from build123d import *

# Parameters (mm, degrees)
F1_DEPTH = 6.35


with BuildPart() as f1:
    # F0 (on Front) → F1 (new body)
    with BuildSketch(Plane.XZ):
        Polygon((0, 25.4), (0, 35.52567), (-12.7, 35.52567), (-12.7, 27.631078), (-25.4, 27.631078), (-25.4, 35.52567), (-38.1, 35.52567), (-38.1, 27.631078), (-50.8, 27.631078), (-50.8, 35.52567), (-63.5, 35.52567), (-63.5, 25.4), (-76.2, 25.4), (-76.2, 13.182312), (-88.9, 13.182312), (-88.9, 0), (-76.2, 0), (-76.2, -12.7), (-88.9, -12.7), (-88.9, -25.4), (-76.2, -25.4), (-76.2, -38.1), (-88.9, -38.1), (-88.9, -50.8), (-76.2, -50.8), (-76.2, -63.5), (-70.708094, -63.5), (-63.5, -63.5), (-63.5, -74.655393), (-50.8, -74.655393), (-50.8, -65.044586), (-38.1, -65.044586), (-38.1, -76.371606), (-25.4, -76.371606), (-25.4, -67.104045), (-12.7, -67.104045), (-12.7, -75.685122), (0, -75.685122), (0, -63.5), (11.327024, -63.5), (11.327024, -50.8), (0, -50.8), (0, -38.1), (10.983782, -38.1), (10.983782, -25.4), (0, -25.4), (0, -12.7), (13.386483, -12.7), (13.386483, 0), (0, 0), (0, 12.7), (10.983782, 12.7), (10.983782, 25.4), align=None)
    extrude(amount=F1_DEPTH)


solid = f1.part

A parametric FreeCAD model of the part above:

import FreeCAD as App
import Part
import Sketcher
Q = App.Units.Quantity

doc = App.newDocument("Part")
body = doc.addObject("PartDesign::Body", "Body")

# Sketch on XZ plane
sketch1 = body.newObject("Sketcher::SketchObject", "Sketch")
sketch1.AttachmentSupport = (doc.getObject("XZ_Plane"), [""])
sketch1.MapMode = "FlatFace"
sketch1.addGeometry(Part.LineSegment(App.Vector(0, 25.4, 0), App.Vector(0, 35.52567, 0)), False)
sketch1.addGeometry(Part.LineSegment(App.Vector(0, 35.52567, 0), App.Vector(-12.7, 35.52567, 0)), False)
sketch1.addGeometry(Part.LineSegment(App.Vector(-12.7, 35.52567, 0), App.Vector(-12.7, 27.631078, 0)), False)
sketch1.addGeometry(Part.LineSegment(App.Vector(-12.7, 27.631078, 0), App.Vector(-25.4, 27.631078, 0)), False)
sketch1.addGeometry(Part.LineSegment(App.Vector(-25.4, 27.631078, 0), App.Vector(-25.4, 35.52567, 0)), False)
sketch1.addGeometry(Part.LineSegment(App.Vector(-25.4, 35.52567, 0), App.Vector(-38.1, 35.52567, 0)), False)
sketch1.addGeometry(Part.LineSegment(App.Vector(-38.1, 35.52567, 0), App.Vector(-38.1, 27.631078, 0)), False)
sketch1.addGeometry(Part.LineSegment(App.Vector(-38.1, 27.631078, 0), App.Vector(-50.8, 27.631078, 0)), False)
sketch1.addGeometry(Part.LineSegment(App.Vector(-50.8, 27.631078, 0), App.Vector(-50.8, 35.52567, 0)), False)
sketch1.addGeometry(Part.LineSegment(App.Vector(-50.8, 35.52567, 0), App.Vector(-63.5, 35.52567, 0)), False)
sketch1.addGeometry(Part.LineSegment(App.Vector(-63.5, 35.52567, 0), App.Vector(-63.5, 25.4, 0)), False)
sketch1.addGeometry(Part.LineSegment(App.Vector(-63.5, 25.4, 0), App.Vector(-76.2, 25.4, 0)), False)
sketch1.addGeometry(Part.LineSegment(App.Vector(-76.2, 25.4, 0), App.Vector(-76.2, 13.182312, 0)), False)
sketch1.addGeometry(Part.LineSegment(App.Vector(-76.2, 13.182312, 0), App.Vector(-88.9, 13.182312, 0)), False)
sketch1.addGeometry(Part.LineSegment(App.Vector(-88.9, 13.182312, 0), App.Vector(-88.9, 0, 0)), False)
sketch1.addGeometry(Part.LineSegment(App.Vector(-88.9, 0, 0), App.Vector(-76.2, 0, 0)), False)
sketch1.addGeometry(Part.LineSegment(App.Vector(-76.2, 0, 0), App.Vector(-76.2, -12.7, 0)), False)
sketch1.addGeometry(Part.LineSegment(App.Vector(-76.2, -12.7, 0), App.Vector(-88.9, -12.7, 0)), False)
sketch1.addGeometry(Part.LineSegment(App.Vector(-88.9, -12.7, 0), App.Vector(-88.9, -25.4, 0)), False)
sketch1.addGeometry(Part.LineSegment(App.Vector(-88.9, -25.4, 0), App.Vector(-76.2, -25.4, 0)), False)
sketch1.addGeometry(Part.LineSegment(App.Vector(-76.2, -25.4, 0), App.Vector(-76.2, -38.1, 0)), False)
sketch1.addGeometry(Part.LineSegment(App.Vector(-76.2, -38.1, 0), App.Vector(-88.9, -38.1, 0)), False)
sketch1.addGeometry(Part.LineSegment(App.Vector(-88.9, -38.1, 0), App.Vector(-88.9, -50.8, 0)), False)
sketch1.addGeometry(Part.LineSegment(App.Vector(-88.9, -50.8, 0), App.Vector(-76.2, -50.8, 0)), False)
sketch1.addGeometry(Part.LineSegment(App.Vector(-76.2, -50.8, 0), App.Vector(-76.2, -63.5, 0)), False)
sketch1.addGeometry(Part.LineSegment(App.Vector(-76.2, -63.5, 0), App.Vector(-63.5, -63.5, 0)), False)
sketch1.addGeometry(Part.LineSegment(App.Vector(-63.5, -63.5, 0), App.Vector(-63.5, -74.655393, 0)), False)
sketch1.addGeometry(Part.LineSegment(App.Vector(-63.5, -74.655393, 0), App.Vector(-50.8, -74.655393, 0)), False)
sketch1.addGeometry(Part.LineSegment(App.Vector(-50.8, -74.655393, 0), App.Vector(-50.8, -65.044586, 0)), False)
sketch1.addGeometry(Part.LineSegment(App.Vector(-50.8, -65.044586, 0), App.Vector(-38.1, -65.044586, 0)), False)
sketch1.addGeometry(Part.LineSegment(App.Vector(-38.1, -65.044586, 0), App.Vector(-38.1, -76.371606, 0)), False)
sketch1.addGeometry(Part.LineSegment(App.Vector(-38.1, -76.371606, 0), App.Vector(-25.4, -76.371606, 0)), False)
sketch1.addGeometry(Part.LineSegment(App.Vector(-25.4, -76.371606, 0), App.Vector(-25.4, -67.104045, 0)), False)
sketch1.addGeometry(Part.LineSegment(App.Vector(-25.4, -67.104045, 0), App.Vector(-12.7, -67.104045, 0)), False)
sketch1.addGeometry(Part.LineSegment(App.Vector(-12.7, -67.104045, 0), App.Vector(-12.7, -75.685122, 0)), False)
sketch1.addGeometry(Part.LineSegment(App.Vector(-12.7, -75.685122, 0), App.Vector(0, -75.685122, 0)), False)
sketch1.addGeometry(Part.LineSegment(App.Vector(0, -75.685122, 0), App.Vector(0, -63.5, 0)), False)
sketch1.addGeometry(Part.LineSegment(App.Vector(0, -63.5, 0), App.Vector(11.327024, -63.5, 0)), False)
sketch1.addGeometry(Part.LineSegment(App.Vector(11.327024, -63.5, 0), App.Vector(11.327024, -50.8, 0)), False)
sketch1.addGeometry(Part.LineSegment(App.Vector(11.327024, -50.8, 0), App.Vector(0, -50.8, 0)), False)
sketch1.addGeometry(Part.LineSegment(App.Vector(0, -50.8, 0), App.Vector(0, -38.1, 0)), False)
sketch1.addGeometry(Part.LineSegment(App.Vector(0, -38.1, 0), App.Vector(10.983782, -38.1, 0)), False)
sketch1.addGeometry(Part.LineSegment(App.Vector(10.983782, -38.1, 0), App.Vector(10.983782, -25.4, 0)), False)
sketch1.addGeometry(Part.LineSegment(App.Vector(10.983782, -25.4, 0), App.Vector(0, -25.4, 0)), False)
sketch1.addGeometry(Part.LineSegment(App.Vector(0, -25.4, 0), App.Vector(0, -12.7, 0)), False)
sketch1.addGeometry(Part.LineSegment(App.Vector(0, -12.7, 0), App.Vector(13.386483, -12.7, 0)), False)
sketch1.addGeometry(Part.LineSegment(App.Vector(13.386483, -12.7, 0), App.Vector(13.386483, 0, 0)), False)
sketch1.addGeometry(Part.LineSegment(App.Vector(13.386483, 0, 0), App.Vector(0, 0, 0)), False)
sketch1.addGeometry(Part.LineSegment(App.Vector(0, 0, 0), App.Vector(0, 12.7, 0)), False)
sketch1.addGeometry(Part.LineSegment(App.Vector(0, 12.7, 0), App.Vector(10.983782, 12.7, 0)), False)
sketch1.addGeometry(Part.LineSegment(App.Vector(10.983782, 12.7, 0), App.Vector(10.983782, 25.4, 0)), False)
sketch1.addGeometry(Part.LineSegment(App.Vector(10.983782, 25.4, 0), App.Vector(0, 25.4, 0)), False)
sketch1.addConstraint(Sketcher.Constraint("Coincident", 0, 2, 1, 1))
sketch1.addConstraint(Sketcher.Constraint("Coincident", 1, 2, 2, 1))
sketch1.addConstraint(Sketcher.Constraint("Coincident", 2, 2, 3, 1))
sketch1.addConstraint(Sketcher.Constraint("Coincident", 3, 2, 4, 1))
sketch1.addConstraint(Sketcher.Constraint("Coincident", 4, 2, 5, 1))
sketch1.addConstraint(Sketcher.Constraint("Coincident", 5, 2, 6, 1))
sketch1.addConstraint(Sketcher.Constraint("Coincident", 6, 2, 7, 1))
sketch1.addConstraint(Sketcher.Constraint("Coincident", 7, 2, 8, 1))
sketch1.addConstraint(Sketcher.Constraint("Coincident", 8, 2, 9, 1))
sketch1.addConstraint(Sketcher.Constraint("Coincident", 9, 2, 10, 1))
sketch1.addConstraint(Sketcher.Constraint("Coincident", 10, 2, 11, 1))
sketch1.addConstraint(Sketcher.Constraint("Coincident", 11, 2, 12, 1))
sketch1.addConstraint(Sketcher.Constraint("Coincident", 12, 2, 13, 1))
sketch1.addConstraint(Sketcher.Constraint("Coincident", 13, 2, 14, 1))
sketch1.addConstraint(Sketcher.Constraint("Coincident", 14, 2, 15, 1))
sketch1.addConstraint(Sketcher.Constraint("Coincident", 15, 2, 16, 1))
sketch1.addConstraint(Sketcher.Constraint("Coincident", 16, 2, 17, 1))
sketch1.addConstraint(Sketcher.Constraint("Coincident", 17, 2, 18, 1))
sketch1.addConstraint(Sketcher.Constraint("Coincident", 18, 2, 19, 1))
sketch1.addConstraint(Sketcher.Constraint("Coincident", 19, 2, 20, 1))
sketch1.addConstraint(Sketcher.Constraint("Coincident", 20, 2, 21, 1))
sketch1.addConstraint(Sketcher.Constraint("Coincident", 21, 2, 22, 1))
sketch1.addConstraint(Sketcher.Constraint("Coincident", 22, 2, 23, 1))
sketch1.addConstraint(Sketcher.Constraint("Coincident", 23, 2, 24, 1))
sketch1.addConstraint(Sketcher.Constraint("Coincident", 24, 2, 25, 1))
sketch1.addConstraint(Sketcher.Constraint("Coincident", 25, 2, 26, 1))
sketch1.addConstraint(Sketcher.Constraint("Coincident", 26, 2, 27, 1))
sketch1.addConstraint(Sketcher.Constraint("Coincident", 27, 2, 28, 1))
sketch1.addConstraint(Sketcher.Constraint("Coincident", 28, 2, 29, 1))
sketch1.addConstraint(Sketcher.Constraint("Coincident", 29, 2, 30, 1))
sketch1.addConstraint(Sketcher.Constraint("Coincident", 30, 2, 31, 1))
sketch1.addConstraint(Sketcher.Constraint("Coincident", 31, 2, 32, 1))
sketch1.addConstraint(Sketcher.Constraint("Coincident", 32, 2, 33, 1))
sketch1.addConstraint(Sketcher.Constraint("Coincident", 33, 2, 34, 1))
sketch1.addConstraint(Sketcher.Constraint("Coincident", 34, 2, 35, 1))
sketch1.addConstraint(Sketcher.Constraint("Coincident", 35, 2, 36, 1))
sketch1.addConstraint(Sketcher.Constraint("Coincident", 36, 2, 37, 1))
sketch1.addConstraint(Sketcher.Constraint("Coincident", 37, 2, 38, 1))
sketch1.addConstraint(Sketcher.Constraint("Coincident", 38, 2, 39, 1))
sketch1.addConstraint(Sketcher.Constraint("Coincident", 39, 2, 40, 1))
sketch1.addConstraint(Sketcher.Constraint("Coincident", 40, 2, 41, 1))
sketch1.addConstraint(Sketcher.Constraint("Coincident", 41, 2, 42, 1))
sketch1.addConstraint(Sketcher.Constraint("Coincident", 42, 2, 43, 1))
sketch1.addConstraint(Sketcher.Constraint("Coincident", 43, 2, 44, 1))
sketch1.addConstraint(Sketcher.Constraint("Coincident", 44, 2, 45, 1))
sketch1.addConstraint(Sketcher.Constraint("Coincident", 45, 2, 46, 1))
sketch1.addConstraint(Sketcher.Constraint("Coincident", 46, 2, 47, 1))
sketch1.addConstraint(Sketcher.Constraint("Coincident", 47, 2, 48, 1))
sketch1.addConstraint(Sketcher.Constraint("Coincident", 48, 2, 49, 1))
sketch1.addConstraint(Sketcher.Constraint("Coincident", 49, 2, 50, 1))
sketch1.addConstraint(Sketcher.Constraint("Coincident", 50, 2, 51, 1))
sketch1.addConstraint(Sketcher.Constraint("Coincident", 51, 2, 0, 1))
sketch1.addConstraint(Sketcher.Constraint("Vertical", 0))
sketch1.addConstraint(Sketcher.Constraint("Horizontal", 1))
sketch1.addConstraint(Sketcher.Constraint("Vertical", 2))
sketch1.addConstraint(Sketcher.Constraint("Horizontal", 3))
sketch1.addConstraint(Sketcher.Constraint("Vertical", 4))
sketch1.addConstraint(Sketcher.Constraint("Horizontal", 5))
sketch1.addConstraint(Sketcher.Constraint("Vertical", 6))
sketch1.addConstraint(Sketcher.Constraint("Horizontal", 7))
sketch1.addConstraint(Sketcher.Constraint("Vertical", 8))
sketch1.addConstraint(Sketcher.Constraint("Horizontal", 9))
sketch1.addConstraint(Sketcher.Constraint("Vertical", 10))
sketch1.addConstraint(Sketcher.Constraint("Horizontal", 11))
sketch1.addConstraint(Sketcher.Constraint("Vertical", 12))
sketch1.addConstraint(Sketcher.Constraint("Horizontal", 13))
sketch1.addConstraint(Sketcher.Constraint("Vertical", 14))
sketch1.addConstraint(Sketcher.Constraint("Horizontal", 15))
sketch1.addConstraint(Sketcher.Constraint("Vertical", 16))
sketch1.addConstraint(Sketcher.Constraint("Horizontal", 17))
sketch1.addConstraint(Sketcher.Constraint("Vertical", 18))
sketch1.addConstraint(Sketcher.Constraint("Horizontal", 19))
sketch1.addConstraint(Sketcher.Constraint("Vertical", 20))
sketch1.addConstraint(Sketcher.Constraint("Horizontal", 21))
sketch1.addConstraint(Sketcher.Constraint("Vertical", 22))
sketch1.addConstraint(Sketcher.Constraint("Horizontal", 23))
sketch1.addConstraint(Sketcher.Constraint("Vertical", 24))
sketch1.addConstraint(Sketcher.Constraint("Horizontal", 25))
sketch1.addConstraint(Sketcher.Constraint("Vertical", 26))
sketch1.addConstraint(Sketcher.Constraint("Horizontal", 27))
sketch1.addConstraint(Sketcher.Constraint("Vertical", 28))
sketch1.addConstraint(Sketcher.Constraint("Horizontal", 29))
sketch1.addConstraint(Sketcher.Constraint("Vertical", 30))
sketch1.addConstraint(Sketcher.Constraint("Horizontal", 31))
sketch1.addConstraint(Sketcher.Constraint("Vertical", 32))
sketch1.addConstraint(Sketcher.Constraint("Horizontal", 33))
sketch1.addConstraint(Sketcher.Constraint("Vertical", 34))
sketch1.addConstraint(Sketcher.Constraint("Horizontal", 35))
sketch1.addConstraint(Sketcher.Constraint("Vertical", 36))
sketch1.addConstraint(Sketcher.Constraint("Horizontal", 37))
sketch1.addConstraint(Sketcher.Constraint("Vertical", 38))
sketch1.addConstraint(Sketcher.Constraint("Horizontal", 39))
sketch1.addConstraint(Sketcher.Constraint("Vertical", 40))
sketch1.addConstraint(Sketcher.Constraint("Horizontal", 41))
sketch1.addConstraint(Sketcher.Constraint("Vertical", 42))
sketch1.addConstraint(Sketcher.Constraint("Horizontal", 43))
sketch1.addConstraint(Sketcher.Constraint("Vertical", 44))
sketch1.addConstraint(Sketcher.Constraint("Horizontal", 45))
sketch1.addConstraint(Sketcher.Constraint("Vertical", 46))
sketch1.addConstraint(Sketcher.Constraint("Horizontal", 47))
sketch1.addConstraint(Sketcher.Constraint("Vertical", 48))
sketch1.addConstraint(Sketcher.Constraint("Horizontal", 49))
sketch1.addConstraint(Sketcher.Constraint("Vertical", 50))
sketch1.addConstraint(Sketcher.Constraint("Horizontal", 51))
sketch1.addConstraint(Sketcher.Constraint("Coincident", 47, 2, -1, 1))
sketch1.addConstraint(Sketcher.Constraint("Symmetric", 44, 2, 48, 2, -1, 1))
sketch1.addConstraint(Sketcher.Constraint("Symmetric", 43, 2, 51, 2, -1, 1))
sketch1.addConstraint(Sketcher.Constraint("Symmetric", 11, 2, 19, 2, -1))
sketch1.addConstraint(Sketcher.Constraint("PointOnObject", 14, 2, -1))
sketch1.addConstraint(Sketcher.Constraint("PointOnObject", 35, 2, -2))
sketch1.addConstraint(Sketcher.Constraint("PointOnObject", 39, 2, -2))
sketch1.addConstraint(Sketcher.Constraint("Horizontal", 1, 2, 4, 2))
sketch1.addConstraint(Sketcher.Constraint("Horizontal", 3, 2, 6, 2))
sketch1.addConstraint(Sketcher.Constraint("Horizontal", 5, 2, 8, 2))
sketch1.addConstraint(Sketcher.Constraint("Horizontal", 25, 2, 36, 2))
sketch1.addConstraint(Sketcher.Constraint("Horizontal", 23, 2, 38, 2))
sketch1.addConstraint(Sketcher.Constraint("Horizontal", 21, 2, 40, 2))
sketch1.addConstraint(Sketcher.Constraint("Horizontal", 19, 2, 42, 2))
sketch1.addConstraint(Sketcher.Constraint("Horizontal", 17, 2, 44, 2))
sketch1.addConstraint(Sketcher.Constraint("Vertical", 12, 2, 15, 2))
sketch1.addConstraint(Sketcher.Constraint("Vertical", 14, 2, 17, 2))
sketch1.addConstraint(Sketcher.Constraint("Vertical", 18, 2, 21, 2))
sketch1.addConstraint(Sketcher.Constraint("Vertical", 20, 2, 23, 2))
sketch1.addConstraint(Sketcher.Constraint("Vertical", 10, 2, 25, 2))
sketch1.addConstraint(Sketcher.Constraint("Vertical", 8, 2, 27, 2))
sketch1.addConstraint(Sketcher.Constraint("Vertical", 6, 2, 29, 2))
sketch1.addConstraint(Sketcher.Constraint("Vertical", 4, 2, 31, 2))
sketch1.addConstraint(Sketcher.Constraint("Vertical", 2, 2, 33, 2))
sketch1.addConstraint(Sketcher.Constraint("Vertical", 42, 2, 49, 2))
sketch1.addConstraint(Sketcher.Constraint("Equal", 1, 3))
sketch1.addConstraint(Sketcher.Constraint("Equal", 3, 5))
sketch1.addConstraint(Sketcher.Constraint("Equal", 5, 7))
sketch1.addConstraint(Sketcher.Constraint("Equal", 7, 9))
sketch1.addConstraint(Sketcher.Constraint("Equal", 9, 11))
sketch1.addConstraint(Sketcher.Constraint("Equal", 11, 13))
sketch1.addConstraint(Sketcher.Constraint("Equal", 35, 16))
sketch1.addConstraint(Sketcher.Constraint("Equal", 16, 18))
sketch1.addConstraint(Sketcher.Constraint("Equal", 18, 20))
sketch1.addConstraint(Sketcher.Constraint("Equal", 20, 22))
sketch1.addConstraint(Sketcher.Constraint("Equal", 22, 24))
sketch1.addConstraint(Sketcher.Constraint("DistanceX", 1, 2, 1, 1, Q("0.5 in")))
sketch1.addConstraint(Sketcher.Constraint("DistanceY", 0, 1, 0, 2, 10.12567))
sketch1.addConstraint(Sketcher.Constraint("DistanceY", 2, 2, 2, 1, 7.894592))
sketch1.addConstraint(Sketcher.Constraint("DistanceY", 30, 2, 30, 1, 11.32702))
sketch1.addConstraint(Sketcher.Constraint("DistanceY", 32, 1, 32, 2, 9.267561))
sketch1.addConstraint(Sketcher.Constraint("DistanceX", 42, 2, 45, 2, 2.402701))
sketch1.addConstraint(Sketcher.Constraint("DistanceX", 37, 1, 37, 2, 11.327024))
sketch1.addConstraint(Sketcher.Constraint("DistanceX", 41, 1, 41, 2, 10.983782))
sketch1.addConstraint(Sketcher.Constraint("DistanceY", 12, 2, 12, 1, 12.217688))
sketch1.addConstraint(Sketcher.Constraint("DistanceY", 26, 2, 26, 1, 11.155393))
sketch1.addConstraint(Sketcher.Constraint("DistanceY", 28, 1, 28, 2, 9.610807))
sketch1.addConstraint(Sketcher.Constraint("DistanceY", 34, 2, 34, 1, 8.581077))
pad1 = body.newObject("PartDesign::Pad", "Pad")
pad1.Profile = sketch1
pad1.Length = Q("0.25 in")

doc.recompute()
